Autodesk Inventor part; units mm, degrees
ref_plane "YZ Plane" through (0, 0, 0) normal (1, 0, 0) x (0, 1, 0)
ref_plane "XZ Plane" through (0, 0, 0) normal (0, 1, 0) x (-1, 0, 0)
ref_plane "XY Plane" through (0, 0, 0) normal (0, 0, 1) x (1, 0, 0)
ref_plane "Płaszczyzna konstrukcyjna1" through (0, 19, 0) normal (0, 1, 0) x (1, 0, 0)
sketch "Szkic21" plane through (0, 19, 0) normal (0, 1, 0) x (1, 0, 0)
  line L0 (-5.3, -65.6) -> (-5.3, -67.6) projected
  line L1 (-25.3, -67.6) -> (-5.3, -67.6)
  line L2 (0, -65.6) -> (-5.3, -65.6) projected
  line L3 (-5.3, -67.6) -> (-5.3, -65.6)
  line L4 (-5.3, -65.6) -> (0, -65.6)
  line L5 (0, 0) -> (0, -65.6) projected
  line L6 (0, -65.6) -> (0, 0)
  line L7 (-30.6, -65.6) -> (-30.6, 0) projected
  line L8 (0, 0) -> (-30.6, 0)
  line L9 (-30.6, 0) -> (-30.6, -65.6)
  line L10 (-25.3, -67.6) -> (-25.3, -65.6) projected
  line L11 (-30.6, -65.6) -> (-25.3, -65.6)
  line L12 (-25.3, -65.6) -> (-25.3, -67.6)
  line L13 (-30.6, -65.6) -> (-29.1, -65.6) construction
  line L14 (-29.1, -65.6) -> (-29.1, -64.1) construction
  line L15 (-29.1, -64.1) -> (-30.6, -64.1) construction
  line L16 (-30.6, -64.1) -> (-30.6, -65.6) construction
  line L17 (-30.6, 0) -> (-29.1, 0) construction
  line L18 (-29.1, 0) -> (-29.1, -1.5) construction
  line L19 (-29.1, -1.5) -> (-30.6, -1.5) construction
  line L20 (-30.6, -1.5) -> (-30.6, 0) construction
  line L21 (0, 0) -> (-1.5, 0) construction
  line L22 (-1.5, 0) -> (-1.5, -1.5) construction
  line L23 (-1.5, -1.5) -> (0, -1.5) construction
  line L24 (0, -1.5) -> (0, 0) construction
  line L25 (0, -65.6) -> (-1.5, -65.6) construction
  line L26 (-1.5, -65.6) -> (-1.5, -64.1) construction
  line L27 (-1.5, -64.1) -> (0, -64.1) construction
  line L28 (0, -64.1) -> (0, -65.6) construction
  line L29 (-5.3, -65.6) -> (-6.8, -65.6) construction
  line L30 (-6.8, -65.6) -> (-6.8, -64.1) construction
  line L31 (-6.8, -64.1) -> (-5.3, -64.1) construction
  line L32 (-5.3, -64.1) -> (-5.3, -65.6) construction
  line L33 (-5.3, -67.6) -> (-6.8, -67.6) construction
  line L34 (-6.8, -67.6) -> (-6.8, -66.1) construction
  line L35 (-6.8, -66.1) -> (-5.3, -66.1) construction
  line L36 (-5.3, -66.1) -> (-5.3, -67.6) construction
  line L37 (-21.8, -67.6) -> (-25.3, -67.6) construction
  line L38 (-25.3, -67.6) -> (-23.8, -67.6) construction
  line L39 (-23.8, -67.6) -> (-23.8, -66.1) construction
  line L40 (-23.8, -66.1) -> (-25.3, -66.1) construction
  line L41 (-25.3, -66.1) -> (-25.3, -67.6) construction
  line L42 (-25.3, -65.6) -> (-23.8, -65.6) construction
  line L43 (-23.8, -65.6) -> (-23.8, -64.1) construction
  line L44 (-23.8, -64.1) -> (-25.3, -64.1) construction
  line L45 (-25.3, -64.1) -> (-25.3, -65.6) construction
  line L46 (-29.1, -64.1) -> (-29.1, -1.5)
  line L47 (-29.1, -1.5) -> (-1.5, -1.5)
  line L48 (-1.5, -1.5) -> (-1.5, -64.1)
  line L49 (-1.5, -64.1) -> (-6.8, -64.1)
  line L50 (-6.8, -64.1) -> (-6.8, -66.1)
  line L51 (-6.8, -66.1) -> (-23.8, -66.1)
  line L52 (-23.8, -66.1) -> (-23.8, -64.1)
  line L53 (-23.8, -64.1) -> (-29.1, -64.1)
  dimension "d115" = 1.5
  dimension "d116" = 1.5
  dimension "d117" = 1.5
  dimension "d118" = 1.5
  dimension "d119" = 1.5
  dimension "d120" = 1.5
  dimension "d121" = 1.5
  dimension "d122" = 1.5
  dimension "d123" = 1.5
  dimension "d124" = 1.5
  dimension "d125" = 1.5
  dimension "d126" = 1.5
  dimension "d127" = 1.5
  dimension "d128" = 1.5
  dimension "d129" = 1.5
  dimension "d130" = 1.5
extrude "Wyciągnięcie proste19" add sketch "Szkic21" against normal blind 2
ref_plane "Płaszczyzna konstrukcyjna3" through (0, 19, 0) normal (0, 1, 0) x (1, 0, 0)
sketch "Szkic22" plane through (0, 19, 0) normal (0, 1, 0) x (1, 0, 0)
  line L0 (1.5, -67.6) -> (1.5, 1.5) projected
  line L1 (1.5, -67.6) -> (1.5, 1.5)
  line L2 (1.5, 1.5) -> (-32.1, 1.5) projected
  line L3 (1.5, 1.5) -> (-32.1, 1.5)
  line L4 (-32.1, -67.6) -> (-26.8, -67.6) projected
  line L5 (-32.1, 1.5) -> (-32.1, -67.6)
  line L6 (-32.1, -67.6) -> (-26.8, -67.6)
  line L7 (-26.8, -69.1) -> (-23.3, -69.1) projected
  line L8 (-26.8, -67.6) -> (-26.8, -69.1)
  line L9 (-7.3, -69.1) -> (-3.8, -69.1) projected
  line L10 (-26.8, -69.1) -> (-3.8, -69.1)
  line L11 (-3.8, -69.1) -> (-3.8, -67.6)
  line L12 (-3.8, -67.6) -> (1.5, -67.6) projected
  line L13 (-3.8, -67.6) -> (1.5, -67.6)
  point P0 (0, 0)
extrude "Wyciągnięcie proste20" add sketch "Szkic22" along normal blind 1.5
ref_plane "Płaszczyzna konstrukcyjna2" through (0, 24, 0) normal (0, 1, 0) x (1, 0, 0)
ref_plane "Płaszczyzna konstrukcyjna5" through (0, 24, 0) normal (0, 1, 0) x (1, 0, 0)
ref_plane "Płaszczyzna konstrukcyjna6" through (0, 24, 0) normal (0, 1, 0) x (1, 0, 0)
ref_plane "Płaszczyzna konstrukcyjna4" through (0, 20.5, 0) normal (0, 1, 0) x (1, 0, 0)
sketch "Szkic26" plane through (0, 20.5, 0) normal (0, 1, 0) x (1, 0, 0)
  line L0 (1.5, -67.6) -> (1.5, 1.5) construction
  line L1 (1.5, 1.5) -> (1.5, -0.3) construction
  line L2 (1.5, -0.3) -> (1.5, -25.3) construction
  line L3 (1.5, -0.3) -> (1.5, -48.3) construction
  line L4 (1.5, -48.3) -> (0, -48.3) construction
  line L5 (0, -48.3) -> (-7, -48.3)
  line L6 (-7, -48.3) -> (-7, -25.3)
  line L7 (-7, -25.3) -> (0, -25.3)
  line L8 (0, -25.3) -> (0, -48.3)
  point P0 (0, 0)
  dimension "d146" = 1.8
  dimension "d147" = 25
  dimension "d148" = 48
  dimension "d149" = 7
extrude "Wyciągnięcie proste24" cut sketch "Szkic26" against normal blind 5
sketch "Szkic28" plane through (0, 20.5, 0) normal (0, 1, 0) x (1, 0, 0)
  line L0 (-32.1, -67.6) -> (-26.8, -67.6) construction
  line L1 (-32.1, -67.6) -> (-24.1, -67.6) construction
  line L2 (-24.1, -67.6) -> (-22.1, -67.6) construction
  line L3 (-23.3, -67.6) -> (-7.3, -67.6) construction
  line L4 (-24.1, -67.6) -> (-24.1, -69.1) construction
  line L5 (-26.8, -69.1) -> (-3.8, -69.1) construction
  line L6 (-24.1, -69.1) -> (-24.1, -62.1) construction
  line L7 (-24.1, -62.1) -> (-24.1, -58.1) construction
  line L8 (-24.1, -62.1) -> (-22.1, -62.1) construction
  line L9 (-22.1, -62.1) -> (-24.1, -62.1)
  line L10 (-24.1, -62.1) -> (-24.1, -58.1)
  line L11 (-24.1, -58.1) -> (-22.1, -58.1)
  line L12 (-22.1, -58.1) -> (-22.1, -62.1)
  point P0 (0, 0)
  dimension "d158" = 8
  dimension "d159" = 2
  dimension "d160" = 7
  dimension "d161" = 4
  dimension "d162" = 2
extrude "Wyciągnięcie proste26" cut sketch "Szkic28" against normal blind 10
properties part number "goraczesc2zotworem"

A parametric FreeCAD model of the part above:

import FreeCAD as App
import Part
import Sketcher

V = App.Vector


def add_polygon(sketch, points):
    """Adds a closed chain of lines whose ends are joined by coincident constraints."""
    first, n = sketch.GeometryCount, len(points)
    for a, b in zip(points, points[1:] + points[:1]):
        sketch.addGeometry(Part.LineSegment(App.Vector(*a, 0), App.Vector(*b, 0)), False)
    for i in range(n):
        sketch.addConstraint(Sketcher.Constraint("Coincident", first + i, 2, first + (i + 1) % n, 1))

doc = App.newDocument("Part")
params = doc.addObject("Spreadsheet::Sheet", "Params")
for row, (alias, value) in enumerate([
    ("sketch1_width", "20 mm"),
    ("sketch1_height", "2 mm"),
    ("sketch1_width2", "5.3 mm"),
    ("sketch1_height2", "65.6 mm"),
    ("pad1_length", "2 mm"),
    ("sketch2_width", "23 mm"),
    ("sketch2_width2", "5.3 mm"),
    ("sketch2_height", "69.1 mm"),
    ("sketch2_height2", "1.5 mm"),
    ("pad2_length", "1.5 mm"),
    ("sketch3_width", "7 mm"),
    ("sketch3_height", "23 mm"),
    ("pocket1_length", "5 mm"),
    ("sketch4_width", "2 mm"),
    ("sketch4_height", "4 mm"),
    ("pocket2_length", "10 mm"),
], start=1):
    params.set(f"A{row}", alias)
    params.set(f"B{row}", "=" + value)
    params.setAlias(f"B{row}", alias)

body = doc.addObject("PartDesign::Body", "Body")

# Sketch on XZ plane
sketch1 = body.newObject("Sketcher::SketchObject", "Sketch")
sketch1.AttachmentSupport = (doc.getObject("XZ_Plane"), [""])
sketch1.MapMode = "FlatFace"
sketch1.AttachmentOffset = App.Placement(V(0, 0, -19), App.Rotation())
add_polygon(sketch1, [(-5.3, 67.6), (-5.3, 65.6), (0, 65.6), (0, 0), (-30.6, 0), (-30.6, 65.6), (-25.3, 65.6), (-25.3, 67.6)])  # lines 0-7
add_polygon(sketch1, [(-23.8, 64.1), (-29.1, 64.1), (-29.1, 1.5), (-1.5, 1.5), (-1.5, 64.1), (-6.8, 64.1), (-6.8, 66.1), (-23.8, 66.1)])  # lines 8-15
sketch1.addConstraint([
    Sketcher.Constraint("Vertical", 0),
    Sketcher.Constraint("Horizontal", 1),
    Sketcher.Constraint("Vertical", 2),
    Sketcher.Constraint("Horizontal", 3),
    Sketcher.Constraint("Vertical", 4),
    Sketcher.Constraint("Horizontal", 5),
    Sketcher.Constraint("Vertical", 6),
    Sketcher.Constraint("Horizontal", 7),
    Sketcher.Constraint("Horizontal", 8),
    Sketcher.Constraint("Vertical", 9),
    Sketcher.Constraint("Horizontal", 10),
    Sketcher.Constraint("Vertical", 11),
    Sketcher.Constraint("Horizontal", 12),
    Sketcher.Constraint("Vertical", 13),
    Sketcher.Constraint("Horizontal", 14),
    Sketcher.Constraint("Vertical", 15),
    Sketcher.Constraint("Coincident", 2, 2, -1, 1),
    Sketcher.Constraint("Horizontal", 1, 2, 4, 2),
    Sketcher.Constraint("Horizontal", 8, 2, 11, 2),
    Sketcher.Constraint("Equal", 1, 5),
    Sketcher.Constraint("Equal", 5, 8),
    Sketcher.Constraint("Equal", 8, 12),
    Sketcher.Constraint("Equal", 6, 13),
    Sketcher.Constraint("DistanceY", -1, 1, 9, 2, 1.5),
    Sketcher.Constraint("DistanceX", 10, 2, -1, 1, 1.5),
    Sketcher.Constraint("DistanceX", 4, 2, 8, 2, 1.5),
    Sketcher.Constraint("DistanceY", 8, 2, 4, 2, 1.5),
    Sketcher.Constraint("DistanceX", 7, 1, 7, 2, 20.0),
    Sketcher.Constraint("DistanceY", 0, 2, 0, 1, 2.0),
    Sketcher.Constraint("DistanceX", 1, 1, 1, 2, 5.3),
    Sketcher.Constraint("DistanceY", 2, 2, 2, 1, 65.6),
])
sketch1.setExpression("Constraints[43]", "Params.sketch1_width")
sketch1.setExpression("Constraints[44]", "Params.sketch1_height")
sketch1.setExpression("Constraints[45]", "Params.sketch1_width2")
sketch1.setExpression("Constraints[46]", "Params.sketch1_height2")
pad1 = body.newObject("PartDesign::Pad", "Pad")
pad1.Profile = sketch1
pad1.setExpression("Length", "Params.pad1_length")

# Sketch on XZ plane
sketch2 = body.newObject("Sketcher::SketchObject", "Sketch001")
sketch2.AttachmentSupport = (doc.getObject("XZ_Plane"), [""])
sketch2.MapMode = "FlatFace"
sketch2.AttachmentOffset = App.Placement(V(0, 0, -19), App.Rotation())
add_polygon(sketch2, [(-3.8, 67.6), (1.5, 67.6), (1.5, -1.5), (-32.1, -1.5), (-32.1, 67.6), (-26.8, 67.6), (-26.8, 69.1), (-3.8, 69.1)])  # lines 0-7
sketch2.addConstraint([
    Sketcher.Constraint("Horizontal", 0),
    Sketcher.Constraint("Vertical", 1),
    Sketcher.Constraint("Horizontal", 2),
    Sketcher.Constraint("Vertical", 3),
    Sketcher.Constraint("Horizontal", 4),
    Sketcher.Constraint("Vertical", 5),
    Sketcher.Constraint("Horizontal", 6),
    Sketcher.Constraint("Vertical", 7),
    Sketcher.Constraint("Horizontal", 0, 2, 3, 2),
    Sketcher.Constraint("Equal", 0, 4),
    Sketcher.Constraint("DistanceX", 6, 1, 6, 2, 23.0),
    Sketcher.Constraint("DistanceX", 0, 1, 0, 2, 5.3),
    Sketcher.Constraint("DistanceY", 1, 2, 1, 1, 69.1),
    Sketcher.Constraint("DistanceY", 5, 1, 5, 2, 1.5),
    Sketcher.Constraint("DistanceX", -1, 1, 0, 2, 1.5),
    Sketcher.Constraint("DistanceY", -1, 1, 0, 2, 67.6),
])
sketch2.setExpression("Constraints[18]", "Params.sketch2_width")
sketch2.setExpression("Constraints[19]", "Params.sketch2_width2")
sketch2.setExpression("Constraints[20]", "Params.sketch2_height")
sketch2.setExpression("Constraints[21]", "Params.sketch2_height2")
pad2 = body.newObject("PartDesign::Pad", "Pad001")
pad2.Profile = sketch2
pad2.setExpression("Length", "Params.pad2_length")
pad2.Reversed = True

# Sketch on XZ plane
sketch3 = body.newObject("Sketcher::SketchObject", "Sketch002")
sketch3.AttachmentSupport = (doc.getObject("XZ_Plane"), [""])
sketch3.MapMode = "FlatFace"
sketch3.AttachmentOffset = App.Placement(V(0, 0, -20.5), App.Rotation())
add_polygon(sketch3, [(-7, 48), (0, 48), (0, 25), (-7, 25)])  # lines 0-3
sketch3.addConstraint([
    Sketcher.Constraint("Horizontal", 0),
    Sketcher.Constraint("Vertical", 1),
    Sketcher.Constraint("Horizontal", 2),
    Sketcher.Constraint("Vertical", 3),
    Sketcher.Constraint("PointOnObject", 0, 2, -2),
    Sketcher.Constraint("DistanceX", 0, 1, 0, 2, 7.0),
    Sketcher.Constraint("DistanceY", 1, 2, 1, 1, 23.0),
    Sketcher.Constraint("DistanceY", -1, 1, 0, 2, 48.3),
])
sketch3.setExpression("Constraints[9]", "Params.sketch3_width")
sketch3.setExpression("Constraints[10]", "Params.sketch3_height")
pocket1 = body.newObject("PartDesign::Pocket", "Pocket")
pocket1.Profile = sketch3
pocket1.setExpression("Length", "Params.pocket1_length")
pocket1.Reversed = True

# Sketch on XZ plane
sketch4 = body.newObject("Sketcher::SketchObject", "Sketch003")
sketch4.AttachmentSupport = (doc.getObject("XZ_Plane"), [""])
sketch4.MapMode = "FlatFace"
sketch4.AttachmentOffset = App.Placement(V(0, 0, -20.5), App.Rotation())
add_polygon(sketch4, [(-24.1, 62.1), (-22.1, 62.1), (-22.1, 58.1), (-24.1, 58.1)])  # lines 0-3
sketch4.addConstraint([
    Sketcher.Constraint("Horizontal", 0),
    Sketcher.Constraint("Vertical", 1),
    Sketcher.Constraint("Horizontal", 2),
    Sketcher.Constraint("Vertical", 3),
    Sketcher.Constraint("DistanceX", 0, 1, 0, 2, 2.0),
    Sketcher.Constraint("DistanceY", 1, 2, 1, 1, 4.0),
    Sketcher.Constraint("DistanceX", 0, 2, -1, 1, 22.1),
    Sketcher.Constraint("DistanceY", -1, 1, 0, 2, 62.1),
])
sketch4.setExpression("Constraints[8]", "Params.sketch4_width")
sketch4.setExpression("Constraints[9]", "Params.sketch4_height")
pocket2 = body.newObject("PartDesign::Pocket", "Pocket001")
pocket2.Profile = sketch4
pocket2.setExpression("Length", "Params.pocket2_length")
pocket2.Reversed = True

doc.recompute()
